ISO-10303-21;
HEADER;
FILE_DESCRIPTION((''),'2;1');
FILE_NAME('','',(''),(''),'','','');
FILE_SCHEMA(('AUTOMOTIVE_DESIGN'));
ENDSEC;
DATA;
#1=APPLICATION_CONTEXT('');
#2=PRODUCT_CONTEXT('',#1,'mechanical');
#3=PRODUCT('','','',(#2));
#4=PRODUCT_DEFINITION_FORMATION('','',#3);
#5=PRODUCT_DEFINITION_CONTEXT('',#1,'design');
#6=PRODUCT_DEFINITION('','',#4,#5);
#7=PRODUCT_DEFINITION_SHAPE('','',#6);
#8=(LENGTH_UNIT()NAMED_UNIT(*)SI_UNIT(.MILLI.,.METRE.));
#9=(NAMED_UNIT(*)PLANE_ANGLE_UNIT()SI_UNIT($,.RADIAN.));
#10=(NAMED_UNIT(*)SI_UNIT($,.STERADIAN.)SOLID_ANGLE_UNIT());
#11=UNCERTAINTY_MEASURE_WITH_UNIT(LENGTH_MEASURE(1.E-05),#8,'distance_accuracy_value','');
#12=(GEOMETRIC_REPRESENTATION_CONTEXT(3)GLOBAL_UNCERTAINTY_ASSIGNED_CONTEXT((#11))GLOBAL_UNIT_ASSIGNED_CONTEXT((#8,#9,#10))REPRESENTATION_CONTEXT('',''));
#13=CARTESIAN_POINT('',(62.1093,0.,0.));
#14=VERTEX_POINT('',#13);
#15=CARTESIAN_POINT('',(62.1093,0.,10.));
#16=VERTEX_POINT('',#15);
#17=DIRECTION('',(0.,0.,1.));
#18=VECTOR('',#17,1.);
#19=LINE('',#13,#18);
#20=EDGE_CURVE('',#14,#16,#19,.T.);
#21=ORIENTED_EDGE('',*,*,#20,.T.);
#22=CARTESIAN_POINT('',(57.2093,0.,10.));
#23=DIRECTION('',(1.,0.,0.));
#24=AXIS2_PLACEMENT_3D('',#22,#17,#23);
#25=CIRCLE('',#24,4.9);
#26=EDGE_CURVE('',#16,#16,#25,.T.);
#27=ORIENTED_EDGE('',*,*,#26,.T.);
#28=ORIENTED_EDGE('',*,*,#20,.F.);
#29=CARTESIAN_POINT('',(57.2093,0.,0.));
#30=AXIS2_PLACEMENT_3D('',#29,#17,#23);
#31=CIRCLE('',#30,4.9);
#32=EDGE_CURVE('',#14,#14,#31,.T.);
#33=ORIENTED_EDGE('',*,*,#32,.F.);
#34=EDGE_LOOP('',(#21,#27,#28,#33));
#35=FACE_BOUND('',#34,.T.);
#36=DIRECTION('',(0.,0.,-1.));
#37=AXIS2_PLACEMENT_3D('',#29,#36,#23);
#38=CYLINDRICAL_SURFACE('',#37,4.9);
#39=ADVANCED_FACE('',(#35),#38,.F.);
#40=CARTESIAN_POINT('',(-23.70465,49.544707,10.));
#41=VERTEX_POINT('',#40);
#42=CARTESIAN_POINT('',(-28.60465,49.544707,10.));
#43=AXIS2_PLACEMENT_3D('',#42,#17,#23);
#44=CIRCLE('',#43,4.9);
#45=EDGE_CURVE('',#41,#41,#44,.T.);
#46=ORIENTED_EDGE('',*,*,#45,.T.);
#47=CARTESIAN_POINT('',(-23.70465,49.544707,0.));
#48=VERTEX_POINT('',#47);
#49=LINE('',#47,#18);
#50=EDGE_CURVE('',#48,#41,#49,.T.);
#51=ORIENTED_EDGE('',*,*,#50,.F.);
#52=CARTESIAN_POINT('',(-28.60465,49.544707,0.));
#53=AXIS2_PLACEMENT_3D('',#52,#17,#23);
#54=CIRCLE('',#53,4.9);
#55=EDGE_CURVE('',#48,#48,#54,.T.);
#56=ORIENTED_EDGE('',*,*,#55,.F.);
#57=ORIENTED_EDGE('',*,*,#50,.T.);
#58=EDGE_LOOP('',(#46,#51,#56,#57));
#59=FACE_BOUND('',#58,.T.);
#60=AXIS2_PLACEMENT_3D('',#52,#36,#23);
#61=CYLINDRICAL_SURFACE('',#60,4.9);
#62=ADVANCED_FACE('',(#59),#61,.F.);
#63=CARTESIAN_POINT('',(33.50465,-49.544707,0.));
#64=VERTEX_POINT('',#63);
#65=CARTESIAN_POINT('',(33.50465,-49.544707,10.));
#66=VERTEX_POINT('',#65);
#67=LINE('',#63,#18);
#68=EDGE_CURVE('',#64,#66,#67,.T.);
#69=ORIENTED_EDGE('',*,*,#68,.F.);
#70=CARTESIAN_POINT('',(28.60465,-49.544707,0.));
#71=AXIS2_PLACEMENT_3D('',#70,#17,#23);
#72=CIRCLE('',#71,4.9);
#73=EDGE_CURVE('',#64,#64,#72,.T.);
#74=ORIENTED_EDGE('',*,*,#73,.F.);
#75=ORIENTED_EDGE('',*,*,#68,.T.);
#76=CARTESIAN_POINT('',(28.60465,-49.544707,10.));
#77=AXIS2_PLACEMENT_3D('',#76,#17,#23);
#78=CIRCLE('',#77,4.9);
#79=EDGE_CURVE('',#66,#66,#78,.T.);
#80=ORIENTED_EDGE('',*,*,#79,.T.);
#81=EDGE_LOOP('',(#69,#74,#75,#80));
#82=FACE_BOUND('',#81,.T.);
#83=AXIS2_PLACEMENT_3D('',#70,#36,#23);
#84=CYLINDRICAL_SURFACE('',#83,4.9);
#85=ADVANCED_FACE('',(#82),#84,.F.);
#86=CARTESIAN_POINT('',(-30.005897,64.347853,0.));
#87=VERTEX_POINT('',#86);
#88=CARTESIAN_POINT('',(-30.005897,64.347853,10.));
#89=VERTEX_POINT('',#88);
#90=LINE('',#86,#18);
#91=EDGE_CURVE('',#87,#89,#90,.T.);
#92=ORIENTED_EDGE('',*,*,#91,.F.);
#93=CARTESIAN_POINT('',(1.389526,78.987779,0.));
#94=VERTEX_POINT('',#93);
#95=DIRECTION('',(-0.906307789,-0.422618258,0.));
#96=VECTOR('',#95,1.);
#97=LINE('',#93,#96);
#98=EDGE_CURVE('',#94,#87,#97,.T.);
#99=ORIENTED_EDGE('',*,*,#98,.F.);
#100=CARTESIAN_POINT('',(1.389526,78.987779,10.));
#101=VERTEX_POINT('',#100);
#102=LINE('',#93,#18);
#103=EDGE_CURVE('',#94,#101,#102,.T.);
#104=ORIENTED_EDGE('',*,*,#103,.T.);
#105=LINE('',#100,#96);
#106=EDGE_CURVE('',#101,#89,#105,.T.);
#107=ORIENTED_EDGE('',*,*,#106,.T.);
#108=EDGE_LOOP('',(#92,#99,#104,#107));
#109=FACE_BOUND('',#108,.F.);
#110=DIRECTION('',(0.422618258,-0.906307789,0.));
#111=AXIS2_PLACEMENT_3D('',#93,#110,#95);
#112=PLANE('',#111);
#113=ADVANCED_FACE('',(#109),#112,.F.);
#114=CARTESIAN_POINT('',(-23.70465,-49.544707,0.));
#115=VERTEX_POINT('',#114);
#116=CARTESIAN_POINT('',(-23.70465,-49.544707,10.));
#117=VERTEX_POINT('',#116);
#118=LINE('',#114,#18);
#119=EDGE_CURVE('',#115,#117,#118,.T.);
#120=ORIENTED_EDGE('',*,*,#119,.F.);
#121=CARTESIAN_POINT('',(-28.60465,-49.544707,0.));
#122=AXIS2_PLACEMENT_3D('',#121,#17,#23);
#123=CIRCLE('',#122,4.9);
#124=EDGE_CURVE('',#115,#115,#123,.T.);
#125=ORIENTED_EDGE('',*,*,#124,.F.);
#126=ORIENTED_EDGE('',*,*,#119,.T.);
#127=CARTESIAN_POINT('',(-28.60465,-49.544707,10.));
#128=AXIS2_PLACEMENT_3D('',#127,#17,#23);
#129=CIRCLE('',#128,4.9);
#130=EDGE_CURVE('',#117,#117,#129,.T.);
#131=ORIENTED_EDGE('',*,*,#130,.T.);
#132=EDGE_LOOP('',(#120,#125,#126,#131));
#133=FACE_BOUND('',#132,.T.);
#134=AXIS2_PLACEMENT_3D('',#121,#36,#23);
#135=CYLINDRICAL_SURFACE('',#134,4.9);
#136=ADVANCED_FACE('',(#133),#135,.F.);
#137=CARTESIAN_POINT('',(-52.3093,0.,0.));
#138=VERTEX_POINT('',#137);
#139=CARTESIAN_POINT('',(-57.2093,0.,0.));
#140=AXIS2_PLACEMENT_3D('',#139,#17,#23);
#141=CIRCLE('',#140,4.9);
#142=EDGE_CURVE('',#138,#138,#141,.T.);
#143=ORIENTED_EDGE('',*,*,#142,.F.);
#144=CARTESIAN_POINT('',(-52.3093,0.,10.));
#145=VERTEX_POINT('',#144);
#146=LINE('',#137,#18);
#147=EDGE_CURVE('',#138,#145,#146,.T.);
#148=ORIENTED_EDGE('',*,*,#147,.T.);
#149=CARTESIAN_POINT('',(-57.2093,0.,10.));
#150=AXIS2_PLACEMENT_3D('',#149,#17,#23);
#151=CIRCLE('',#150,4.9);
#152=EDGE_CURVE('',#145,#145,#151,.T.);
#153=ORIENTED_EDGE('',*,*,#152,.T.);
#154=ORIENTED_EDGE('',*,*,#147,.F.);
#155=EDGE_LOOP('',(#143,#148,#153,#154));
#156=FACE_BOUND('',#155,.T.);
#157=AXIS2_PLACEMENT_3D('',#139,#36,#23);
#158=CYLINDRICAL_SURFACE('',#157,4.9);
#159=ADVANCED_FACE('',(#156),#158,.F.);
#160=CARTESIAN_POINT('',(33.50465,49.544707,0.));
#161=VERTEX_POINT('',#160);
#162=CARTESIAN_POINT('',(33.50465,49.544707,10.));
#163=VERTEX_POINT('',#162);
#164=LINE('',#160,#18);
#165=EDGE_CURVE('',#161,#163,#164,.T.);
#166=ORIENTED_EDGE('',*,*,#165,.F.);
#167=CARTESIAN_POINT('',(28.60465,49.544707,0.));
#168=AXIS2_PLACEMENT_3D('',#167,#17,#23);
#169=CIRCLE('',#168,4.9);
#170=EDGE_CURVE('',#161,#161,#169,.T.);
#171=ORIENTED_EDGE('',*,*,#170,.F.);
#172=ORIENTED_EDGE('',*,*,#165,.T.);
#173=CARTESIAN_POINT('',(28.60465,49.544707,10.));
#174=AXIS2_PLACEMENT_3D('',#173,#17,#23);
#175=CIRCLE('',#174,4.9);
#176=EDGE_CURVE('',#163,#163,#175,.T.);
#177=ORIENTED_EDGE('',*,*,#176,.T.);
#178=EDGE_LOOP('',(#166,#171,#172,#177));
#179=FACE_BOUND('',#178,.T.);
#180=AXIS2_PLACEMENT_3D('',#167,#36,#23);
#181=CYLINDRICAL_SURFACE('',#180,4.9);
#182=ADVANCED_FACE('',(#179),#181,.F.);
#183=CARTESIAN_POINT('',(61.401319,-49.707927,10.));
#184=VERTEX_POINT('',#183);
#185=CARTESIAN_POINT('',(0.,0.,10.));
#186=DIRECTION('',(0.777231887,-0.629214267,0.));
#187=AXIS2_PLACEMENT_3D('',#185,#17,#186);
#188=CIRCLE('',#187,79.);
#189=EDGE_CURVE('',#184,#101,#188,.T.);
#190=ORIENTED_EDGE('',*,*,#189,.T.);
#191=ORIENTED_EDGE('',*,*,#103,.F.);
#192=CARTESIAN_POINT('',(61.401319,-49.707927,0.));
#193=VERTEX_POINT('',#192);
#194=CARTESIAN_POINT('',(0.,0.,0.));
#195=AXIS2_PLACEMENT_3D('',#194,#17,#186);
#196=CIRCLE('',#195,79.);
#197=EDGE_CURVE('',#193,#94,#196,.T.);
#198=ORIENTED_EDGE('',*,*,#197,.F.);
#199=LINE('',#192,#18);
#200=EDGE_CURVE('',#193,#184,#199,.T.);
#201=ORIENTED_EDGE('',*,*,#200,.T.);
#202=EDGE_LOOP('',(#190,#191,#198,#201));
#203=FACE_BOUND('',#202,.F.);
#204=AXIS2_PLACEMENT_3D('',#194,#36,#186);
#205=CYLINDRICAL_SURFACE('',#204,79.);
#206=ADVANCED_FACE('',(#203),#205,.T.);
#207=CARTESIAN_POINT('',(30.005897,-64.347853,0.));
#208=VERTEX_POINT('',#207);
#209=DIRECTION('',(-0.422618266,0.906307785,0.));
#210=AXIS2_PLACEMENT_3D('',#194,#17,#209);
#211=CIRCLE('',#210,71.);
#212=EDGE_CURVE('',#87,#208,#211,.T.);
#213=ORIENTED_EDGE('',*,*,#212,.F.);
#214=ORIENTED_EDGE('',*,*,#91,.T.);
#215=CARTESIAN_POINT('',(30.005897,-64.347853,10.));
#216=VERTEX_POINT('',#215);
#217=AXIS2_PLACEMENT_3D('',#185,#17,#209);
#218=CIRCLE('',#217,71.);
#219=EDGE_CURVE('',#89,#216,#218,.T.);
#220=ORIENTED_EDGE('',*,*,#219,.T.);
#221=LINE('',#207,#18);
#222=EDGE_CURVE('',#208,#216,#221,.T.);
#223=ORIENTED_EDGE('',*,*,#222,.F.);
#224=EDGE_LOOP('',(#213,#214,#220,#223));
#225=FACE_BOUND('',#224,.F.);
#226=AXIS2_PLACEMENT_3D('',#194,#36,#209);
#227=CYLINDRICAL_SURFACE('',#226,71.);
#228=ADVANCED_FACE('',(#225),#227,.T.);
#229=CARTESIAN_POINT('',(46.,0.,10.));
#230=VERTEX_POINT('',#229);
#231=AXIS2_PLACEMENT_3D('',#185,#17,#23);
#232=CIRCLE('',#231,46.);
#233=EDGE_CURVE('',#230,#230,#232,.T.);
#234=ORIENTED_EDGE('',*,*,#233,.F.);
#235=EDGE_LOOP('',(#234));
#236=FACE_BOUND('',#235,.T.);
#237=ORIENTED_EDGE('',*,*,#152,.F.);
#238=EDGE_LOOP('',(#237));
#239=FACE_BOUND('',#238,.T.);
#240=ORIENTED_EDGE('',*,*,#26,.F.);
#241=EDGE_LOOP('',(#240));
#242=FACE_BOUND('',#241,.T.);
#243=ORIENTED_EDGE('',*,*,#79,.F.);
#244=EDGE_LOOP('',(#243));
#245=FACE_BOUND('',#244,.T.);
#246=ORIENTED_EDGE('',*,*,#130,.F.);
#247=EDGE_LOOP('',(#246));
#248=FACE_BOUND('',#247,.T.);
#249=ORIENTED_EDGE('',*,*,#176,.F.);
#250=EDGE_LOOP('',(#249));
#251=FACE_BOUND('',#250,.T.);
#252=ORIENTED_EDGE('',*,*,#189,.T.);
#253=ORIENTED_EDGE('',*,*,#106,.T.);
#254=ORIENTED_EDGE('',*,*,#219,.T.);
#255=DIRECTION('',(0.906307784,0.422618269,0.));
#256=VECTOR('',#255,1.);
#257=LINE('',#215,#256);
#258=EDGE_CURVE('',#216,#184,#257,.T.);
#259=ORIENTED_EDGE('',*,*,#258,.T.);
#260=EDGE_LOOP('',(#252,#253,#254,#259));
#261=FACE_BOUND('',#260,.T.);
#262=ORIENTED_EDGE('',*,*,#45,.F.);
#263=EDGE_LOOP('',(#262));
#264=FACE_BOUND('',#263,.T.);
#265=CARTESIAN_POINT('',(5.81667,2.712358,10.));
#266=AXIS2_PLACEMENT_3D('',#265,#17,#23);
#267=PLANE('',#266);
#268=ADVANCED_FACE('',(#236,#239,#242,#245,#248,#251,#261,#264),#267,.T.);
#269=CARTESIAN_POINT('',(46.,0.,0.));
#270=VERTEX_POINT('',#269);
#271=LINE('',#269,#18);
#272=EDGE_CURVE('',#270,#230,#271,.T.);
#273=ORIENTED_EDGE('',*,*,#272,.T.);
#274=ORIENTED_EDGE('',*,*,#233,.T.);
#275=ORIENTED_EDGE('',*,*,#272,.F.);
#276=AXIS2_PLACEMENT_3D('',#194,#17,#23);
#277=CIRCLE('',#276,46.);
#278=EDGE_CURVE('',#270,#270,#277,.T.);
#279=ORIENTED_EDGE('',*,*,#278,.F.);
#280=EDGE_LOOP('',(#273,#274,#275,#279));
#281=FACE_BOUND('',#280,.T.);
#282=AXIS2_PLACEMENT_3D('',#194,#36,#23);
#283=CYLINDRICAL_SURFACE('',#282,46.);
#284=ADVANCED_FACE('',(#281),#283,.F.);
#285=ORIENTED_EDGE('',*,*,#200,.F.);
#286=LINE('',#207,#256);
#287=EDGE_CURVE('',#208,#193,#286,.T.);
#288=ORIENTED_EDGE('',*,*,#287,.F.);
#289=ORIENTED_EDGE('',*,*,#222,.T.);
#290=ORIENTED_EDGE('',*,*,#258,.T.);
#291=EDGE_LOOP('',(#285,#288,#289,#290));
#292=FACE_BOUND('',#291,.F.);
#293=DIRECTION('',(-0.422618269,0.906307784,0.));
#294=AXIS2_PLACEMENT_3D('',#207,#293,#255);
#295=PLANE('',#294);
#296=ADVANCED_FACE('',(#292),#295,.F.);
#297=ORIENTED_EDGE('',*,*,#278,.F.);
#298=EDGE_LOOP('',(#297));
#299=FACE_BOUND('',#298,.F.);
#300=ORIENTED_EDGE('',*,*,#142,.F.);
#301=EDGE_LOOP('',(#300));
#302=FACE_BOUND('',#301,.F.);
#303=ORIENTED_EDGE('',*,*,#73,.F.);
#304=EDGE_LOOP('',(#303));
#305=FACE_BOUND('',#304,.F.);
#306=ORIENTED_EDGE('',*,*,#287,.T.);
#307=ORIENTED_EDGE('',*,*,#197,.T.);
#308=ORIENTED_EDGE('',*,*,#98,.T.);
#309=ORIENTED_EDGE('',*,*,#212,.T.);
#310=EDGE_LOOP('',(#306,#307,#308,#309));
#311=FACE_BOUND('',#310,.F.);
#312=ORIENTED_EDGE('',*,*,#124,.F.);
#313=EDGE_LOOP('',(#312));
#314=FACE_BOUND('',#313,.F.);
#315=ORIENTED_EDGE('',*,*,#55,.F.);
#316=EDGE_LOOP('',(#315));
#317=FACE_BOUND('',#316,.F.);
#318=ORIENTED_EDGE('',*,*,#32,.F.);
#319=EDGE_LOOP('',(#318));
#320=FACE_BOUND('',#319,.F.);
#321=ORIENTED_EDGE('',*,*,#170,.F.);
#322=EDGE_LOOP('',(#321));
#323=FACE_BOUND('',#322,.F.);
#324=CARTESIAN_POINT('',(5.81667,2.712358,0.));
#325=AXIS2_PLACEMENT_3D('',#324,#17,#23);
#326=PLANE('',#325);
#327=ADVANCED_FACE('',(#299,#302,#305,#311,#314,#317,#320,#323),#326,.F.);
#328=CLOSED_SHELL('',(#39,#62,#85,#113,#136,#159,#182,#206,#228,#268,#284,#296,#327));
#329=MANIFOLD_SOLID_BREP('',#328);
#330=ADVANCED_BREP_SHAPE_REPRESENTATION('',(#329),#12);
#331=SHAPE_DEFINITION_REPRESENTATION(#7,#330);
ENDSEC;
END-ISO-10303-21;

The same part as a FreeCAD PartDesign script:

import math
import FreeCAD as App
import Part
import Sketcher
from FreeCAD import Vector
Q = App.Units.Quantity

doc = App.newDocument("Part")
params = doc.addObject("Spreadsheet::Sheet", "Params")
for row, (alias, value) in enumerate([
    ("sketch1_diameter", "92 mm"),
    ("sketch1_radius", "71 mm"),
    ("sketch1_radius2", "79 mm"),
    ("sketch1_diameter2", "9.8 mm"),
    ("pad1_length", "10 mm"),
], start=1):
    params.set(f"A{row}", alias)
    params.set(f"B{row}", "=" + value)
    params.setAlias(f"B{row}", alias)

body = doc.addObject("PartDesign::Body", "Body")

# Sketch on XY plane
sketch1 = body.newObject("Sketcher::SketchObject", "Sketch")
sketch1.AttachmentSupport = (doc.getObject("XY_Plane"), [""])
sketch1.MapMode = "FlatFace"
sketch1.addGeometry([
    Part.LineSegment(Vector(1.4, 79, 0), Vector(-30, 64.3, 0)),  # 0
    Part.ArcOfCircle(Part.Circle(Vector(0, 0, 0), Vector(0, 0, 1), 71), math.radians(115), math.radians(295)),  # 1
    Part.LineSegment(Vector(30, -64.3, 0), Vector(61.4, -49.7, 0)),  # 2
    Part.ArcOfCircle(Part.Circle(Vector(0, 0, 0), Vector(0, 0, 1), 79), math.radians(-39), math.radians(89)),  # 3
    Part.Circle(Vector(-28.6, -49.5, 0), Vector(0, 0, 1), 4.9),  # 4
    Part.Circle(Vector(28.6, -49.5, 0), Vector(0, 0, 1), 4.9),  # 5
    Part.Circle(Vector(-57.2, 0, 0), Vector(0, 0, 1), 4.9),  # 6
    Part.Circle(Vector(0, 0, 0), Vector(0, 0, 1), 46),  # 7
    Part.Circle(Vector(-28.6, 49.5, 0), Vector(0, 0, 1), 4.9),  # 8
    Part.Circle(Vector(57.2, 0, 0), Vector(0, 0, 1), 4.9),  # 9
    Part.Circle(Vector(28.6, 49.5, 0), Vector(0, 0, 1), 4.9),  # 10
], False)
sketch1.addConstraint([
    Sketcher.Constraint("Tangent", 0, 2, 1, 1),
    Sketcher.Constraint("Tangent", 1, 2, 2, 1),
    Sketcher.Constraint("Coincident", 2, 2, 3, 1),
    Sketcher.Constraint("Coincident", 3, 2, 0, 1),
    Sketcher.Constraint("Coincident", 1, 3, -1, 1),
    Sketcher.Constraint("Coincident", 3, 3, -1, 1),
    Sketcher.Constraint("Coincident", 7, 3, -1, 1),
    Sketcher.Constraint("Equal", 4, 5),
    Sketcher.Constraint("Equal", 5, 6),
    Sketcher.Constraint("Equal", 6, 8),
    Sketcher.Constraint("Equal", 8, 9),
    Sketcher.Constraint("Equal", 9, 10),
    Sketcher.Constraint("Symmetric", 5, 3, 8, 3, -1, 1),
    Sketcher.Constraint("Symmetric", 6, 3, 9, 3, -1, 1),
    Sketcher.Constraint("Symmetric", 4, 3, 10, 3, -1, 1),
    Sketcher.Constraint("Symmetric", 4, 3, 5, 3, -2),
    Sketcher.Constraint("PointOnObject", 6, 3, -1),
    Sketcher.Constraint("Parallel", 0, 2),
    Sketcher.Constraint("Diameter", 7, 92.0),
    Sketcher.Constraint("Radius", 1, 71.0),
    Sketcher.Constraint("Radius", 3, 79.0),
    Sketcher.Constraint("Diameter", 4, 9.8),
    Sketcher.Constraint("Angle", 0, Q("-155 deg")),
    Sketcher.Constraint("DistanceX", 6, 3, -1, 1, 57.2093),
    Sketcher.Constraint("DistanceX", 4, 3, 5, 3, 57.2093),
    Sketcher.Constraint("DistanceY", 2, 2, 5, 3, 0.16322),
])
sketch1.setExpression("Constraints[18]", "Params.sketch1_diameter")
sketch1.setExpression("Constraints[19]", "Params.sketch1_radius")
sketch1.setExpression("Constraints[20]", "Params.sketch1_radius2")
sketch1.setExpression("Constraints[21]", "Params.sketch1_diameter2")
pad1 = body.newObject("PartDesign::Pad", "Pad")
pad1.Profile = sketch1
pad1.setExpression("Length", "Params.pad1_length")

doc.recompute()
